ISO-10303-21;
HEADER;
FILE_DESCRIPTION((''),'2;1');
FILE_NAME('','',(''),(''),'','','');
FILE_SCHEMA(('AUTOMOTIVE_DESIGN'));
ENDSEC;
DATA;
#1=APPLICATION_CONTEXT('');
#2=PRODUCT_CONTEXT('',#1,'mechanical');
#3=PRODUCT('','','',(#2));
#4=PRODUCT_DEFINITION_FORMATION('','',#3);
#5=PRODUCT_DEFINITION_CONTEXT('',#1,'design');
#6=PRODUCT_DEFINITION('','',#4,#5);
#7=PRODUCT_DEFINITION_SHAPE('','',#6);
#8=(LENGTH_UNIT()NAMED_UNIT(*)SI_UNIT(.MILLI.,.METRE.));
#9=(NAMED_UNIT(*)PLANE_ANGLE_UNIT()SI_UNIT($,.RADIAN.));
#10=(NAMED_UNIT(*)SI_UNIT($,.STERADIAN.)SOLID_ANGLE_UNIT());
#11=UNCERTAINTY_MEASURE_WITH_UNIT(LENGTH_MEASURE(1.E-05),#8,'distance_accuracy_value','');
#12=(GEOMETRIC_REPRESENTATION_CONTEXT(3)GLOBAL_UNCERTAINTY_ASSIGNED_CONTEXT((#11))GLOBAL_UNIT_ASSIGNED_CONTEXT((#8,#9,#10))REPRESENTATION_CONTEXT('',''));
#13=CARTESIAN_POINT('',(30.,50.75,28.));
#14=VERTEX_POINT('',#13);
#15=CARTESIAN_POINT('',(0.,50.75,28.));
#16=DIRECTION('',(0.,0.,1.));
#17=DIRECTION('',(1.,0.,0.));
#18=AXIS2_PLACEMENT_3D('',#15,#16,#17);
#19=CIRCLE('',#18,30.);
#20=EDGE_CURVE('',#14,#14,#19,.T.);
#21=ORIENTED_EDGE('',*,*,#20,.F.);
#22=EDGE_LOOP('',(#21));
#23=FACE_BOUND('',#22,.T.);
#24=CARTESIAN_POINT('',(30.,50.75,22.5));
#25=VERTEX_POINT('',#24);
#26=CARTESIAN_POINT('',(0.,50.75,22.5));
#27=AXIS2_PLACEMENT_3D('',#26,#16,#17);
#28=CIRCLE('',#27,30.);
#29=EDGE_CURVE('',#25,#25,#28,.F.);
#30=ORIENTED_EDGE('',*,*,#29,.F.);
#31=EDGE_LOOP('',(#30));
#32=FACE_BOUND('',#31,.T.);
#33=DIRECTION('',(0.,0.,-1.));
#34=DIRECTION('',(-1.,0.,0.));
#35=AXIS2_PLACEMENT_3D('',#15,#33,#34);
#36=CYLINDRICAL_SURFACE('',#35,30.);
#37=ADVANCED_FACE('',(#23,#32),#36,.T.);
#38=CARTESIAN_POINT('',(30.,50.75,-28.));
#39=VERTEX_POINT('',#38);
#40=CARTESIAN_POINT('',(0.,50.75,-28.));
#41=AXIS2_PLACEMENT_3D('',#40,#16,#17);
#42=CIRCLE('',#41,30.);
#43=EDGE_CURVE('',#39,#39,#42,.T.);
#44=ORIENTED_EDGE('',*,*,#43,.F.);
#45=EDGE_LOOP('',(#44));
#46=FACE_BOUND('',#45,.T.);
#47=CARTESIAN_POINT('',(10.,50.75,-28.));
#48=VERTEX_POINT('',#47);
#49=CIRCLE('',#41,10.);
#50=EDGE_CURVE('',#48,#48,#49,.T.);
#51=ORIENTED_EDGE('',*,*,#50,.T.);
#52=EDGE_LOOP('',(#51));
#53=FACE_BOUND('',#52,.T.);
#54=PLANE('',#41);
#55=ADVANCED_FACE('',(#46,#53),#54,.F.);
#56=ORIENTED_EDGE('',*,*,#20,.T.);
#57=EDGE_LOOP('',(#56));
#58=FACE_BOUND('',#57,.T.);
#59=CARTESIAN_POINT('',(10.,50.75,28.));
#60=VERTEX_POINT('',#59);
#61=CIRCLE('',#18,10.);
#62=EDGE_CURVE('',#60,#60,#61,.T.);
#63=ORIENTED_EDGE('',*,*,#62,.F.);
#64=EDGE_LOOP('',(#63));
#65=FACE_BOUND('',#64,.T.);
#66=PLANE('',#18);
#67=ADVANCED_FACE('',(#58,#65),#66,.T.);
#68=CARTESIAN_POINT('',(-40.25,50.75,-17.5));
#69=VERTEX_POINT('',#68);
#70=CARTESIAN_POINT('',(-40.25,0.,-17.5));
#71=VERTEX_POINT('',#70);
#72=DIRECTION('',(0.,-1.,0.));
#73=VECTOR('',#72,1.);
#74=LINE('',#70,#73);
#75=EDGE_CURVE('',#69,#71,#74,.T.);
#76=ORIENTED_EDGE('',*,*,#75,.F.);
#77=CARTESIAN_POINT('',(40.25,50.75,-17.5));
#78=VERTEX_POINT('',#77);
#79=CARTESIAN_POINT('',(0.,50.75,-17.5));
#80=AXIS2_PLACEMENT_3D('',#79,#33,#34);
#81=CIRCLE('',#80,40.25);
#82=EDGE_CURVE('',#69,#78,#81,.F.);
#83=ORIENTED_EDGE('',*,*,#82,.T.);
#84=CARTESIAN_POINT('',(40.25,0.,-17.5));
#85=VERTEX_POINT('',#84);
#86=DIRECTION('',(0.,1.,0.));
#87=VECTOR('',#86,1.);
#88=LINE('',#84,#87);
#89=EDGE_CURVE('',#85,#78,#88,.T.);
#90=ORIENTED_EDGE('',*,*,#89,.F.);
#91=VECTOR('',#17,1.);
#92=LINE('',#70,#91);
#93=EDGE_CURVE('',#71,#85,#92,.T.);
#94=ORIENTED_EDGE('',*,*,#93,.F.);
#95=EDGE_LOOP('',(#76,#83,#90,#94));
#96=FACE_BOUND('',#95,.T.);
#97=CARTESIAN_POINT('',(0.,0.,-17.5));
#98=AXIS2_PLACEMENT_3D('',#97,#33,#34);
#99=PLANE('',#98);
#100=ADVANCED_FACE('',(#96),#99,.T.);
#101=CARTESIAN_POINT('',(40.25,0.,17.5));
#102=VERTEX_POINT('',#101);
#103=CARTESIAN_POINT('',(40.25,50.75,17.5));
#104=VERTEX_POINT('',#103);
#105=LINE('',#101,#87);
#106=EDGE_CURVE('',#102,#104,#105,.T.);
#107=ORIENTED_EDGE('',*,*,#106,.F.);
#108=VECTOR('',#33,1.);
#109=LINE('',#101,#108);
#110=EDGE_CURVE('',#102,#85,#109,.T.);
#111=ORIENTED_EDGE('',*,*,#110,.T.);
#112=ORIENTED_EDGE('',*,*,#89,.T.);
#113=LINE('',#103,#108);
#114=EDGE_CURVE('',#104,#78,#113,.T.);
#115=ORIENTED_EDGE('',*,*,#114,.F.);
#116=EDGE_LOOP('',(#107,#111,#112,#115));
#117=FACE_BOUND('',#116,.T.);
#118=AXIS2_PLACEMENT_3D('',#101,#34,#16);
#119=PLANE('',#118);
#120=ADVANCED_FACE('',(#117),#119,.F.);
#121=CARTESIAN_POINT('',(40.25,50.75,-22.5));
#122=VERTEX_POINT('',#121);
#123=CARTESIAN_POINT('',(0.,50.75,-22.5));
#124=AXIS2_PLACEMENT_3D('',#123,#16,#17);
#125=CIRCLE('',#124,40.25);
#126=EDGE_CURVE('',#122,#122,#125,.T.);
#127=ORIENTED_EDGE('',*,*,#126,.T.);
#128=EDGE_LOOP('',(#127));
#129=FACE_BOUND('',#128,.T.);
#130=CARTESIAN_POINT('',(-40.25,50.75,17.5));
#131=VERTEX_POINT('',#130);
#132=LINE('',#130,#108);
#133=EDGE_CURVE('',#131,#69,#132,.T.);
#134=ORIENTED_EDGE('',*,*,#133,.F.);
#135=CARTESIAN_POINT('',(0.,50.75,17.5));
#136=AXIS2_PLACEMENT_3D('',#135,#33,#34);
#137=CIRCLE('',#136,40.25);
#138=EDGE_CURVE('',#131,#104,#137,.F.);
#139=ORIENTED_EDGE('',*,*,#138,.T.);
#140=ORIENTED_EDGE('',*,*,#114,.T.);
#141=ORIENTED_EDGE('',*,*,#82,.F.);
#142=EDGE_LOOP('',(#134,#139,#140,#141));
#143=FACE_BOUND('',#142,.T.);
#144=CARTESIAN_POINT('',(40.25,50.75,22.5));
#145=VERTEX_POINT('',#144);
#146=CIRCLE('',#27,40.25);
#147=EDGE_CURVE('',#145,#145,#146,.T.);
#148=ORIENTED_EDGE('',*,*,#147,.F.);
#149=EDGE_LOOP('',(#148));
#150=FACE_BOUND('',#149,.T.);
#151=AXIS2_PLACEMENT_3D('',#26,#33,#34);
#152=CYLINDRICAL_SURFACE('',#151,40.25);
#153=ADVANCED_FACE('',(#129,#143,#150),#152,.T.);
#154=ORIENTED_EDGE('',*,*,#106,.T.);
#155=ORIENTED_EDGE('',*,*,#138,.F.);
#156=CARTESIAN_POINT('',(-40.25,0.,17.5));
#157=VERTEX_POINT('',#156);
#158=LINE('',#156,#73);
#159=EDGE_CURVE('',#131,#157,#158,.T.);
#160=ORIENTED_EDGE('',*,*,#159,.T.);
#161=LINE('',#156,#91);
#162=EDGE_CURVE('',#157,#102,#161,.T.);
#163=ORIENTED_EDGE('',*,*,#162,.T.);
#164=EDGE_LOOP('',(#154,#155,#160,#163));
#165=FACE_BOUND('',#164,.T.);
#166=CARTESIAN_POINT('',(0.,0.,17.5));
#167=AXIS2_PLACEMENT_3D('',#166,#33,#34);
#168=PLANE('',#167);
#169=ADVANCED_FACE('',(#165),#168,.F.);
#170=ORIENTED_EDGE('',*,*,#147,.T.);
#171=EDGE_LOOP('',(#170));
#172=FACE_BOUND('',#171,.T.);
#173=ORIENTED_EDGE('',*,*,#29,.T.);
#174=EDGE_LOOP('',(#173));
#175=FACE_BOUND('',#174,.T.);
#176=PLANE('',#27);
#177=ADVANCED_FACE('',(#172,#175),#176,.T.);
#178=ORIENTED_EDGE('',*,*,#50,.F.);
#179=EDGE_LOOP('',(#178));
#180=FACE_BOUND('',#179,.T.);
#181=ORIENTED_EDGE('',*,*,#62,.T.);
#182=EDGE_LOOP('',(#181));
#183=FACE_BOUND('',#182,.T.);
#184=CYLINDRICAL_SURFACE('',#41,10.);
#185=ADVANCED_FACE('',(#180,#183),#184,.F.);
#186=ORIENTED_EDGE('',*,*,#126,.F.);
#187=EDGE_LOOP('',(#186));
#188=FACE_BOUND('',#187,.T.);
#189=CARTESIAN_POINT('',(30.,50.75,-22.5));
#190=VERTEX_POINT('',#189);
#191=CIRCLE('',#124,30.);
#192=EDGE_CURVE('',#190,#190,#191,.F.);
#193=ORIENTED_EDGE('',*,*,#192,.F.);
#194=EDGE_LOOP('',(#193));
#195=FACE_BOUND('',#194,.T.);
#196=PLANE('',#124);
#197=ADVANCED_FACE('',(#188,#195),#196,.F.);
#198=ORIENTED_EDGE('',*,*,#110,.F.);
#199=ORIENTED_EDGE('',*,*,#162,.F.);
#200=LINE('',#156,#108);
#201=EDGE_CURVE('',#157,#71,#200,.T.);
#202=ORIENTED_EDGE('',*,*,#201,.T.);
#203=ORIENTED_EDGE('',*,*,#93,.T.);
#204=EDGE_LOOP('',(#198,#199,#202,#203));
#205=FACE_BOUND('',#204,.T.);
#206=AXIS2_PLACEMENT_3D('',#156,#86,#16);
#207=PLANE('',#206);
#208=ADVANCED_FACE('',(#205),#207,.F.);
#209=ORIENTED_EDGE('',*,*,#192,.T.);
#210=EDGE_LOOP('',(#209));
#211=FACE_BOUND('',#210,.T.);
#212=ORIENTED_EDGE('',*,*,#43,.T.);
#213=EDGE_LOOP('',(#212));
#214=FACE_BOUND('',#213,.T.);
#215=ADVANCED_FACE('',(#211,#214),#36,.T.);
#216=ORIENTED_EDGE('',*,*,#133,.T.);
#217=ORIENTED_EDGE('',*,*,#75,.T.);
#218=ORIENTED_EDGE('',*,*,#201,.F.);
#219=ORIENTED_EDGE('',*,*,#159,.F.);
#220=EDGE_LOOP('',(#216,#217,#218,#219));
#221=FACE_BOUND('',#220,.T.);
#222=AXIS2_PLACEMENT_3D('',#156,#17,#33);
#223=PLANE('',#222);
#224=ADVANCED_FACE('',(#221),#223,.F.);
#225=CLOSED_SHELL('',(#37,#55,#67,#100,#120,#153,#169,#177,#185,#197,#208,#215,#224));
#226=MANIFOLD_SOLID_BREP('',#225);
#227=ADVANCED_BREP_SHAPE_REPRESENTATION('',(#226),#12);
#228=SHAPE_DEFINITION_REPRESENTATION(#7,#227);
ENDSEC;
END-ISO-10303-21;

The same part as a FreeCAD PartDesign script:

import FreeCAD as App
import Part
import Sketcher

V = App.Vector
Q = App.Units.Quantity


def add_polygon(sketch, points):
    """Adds a closed chain of lines whose ends are joined by coincident constraints."""
    first, n = sketch.GeometryCount, len(points)
    for a, b in zip(points, points[1:] + points[:1]):
        sketch.addGeometry(Part.LineSegment(App.Vector(*a, 0), App.Vector(*b, 0)), False)
    for i in range(n):
        sketch.addConstraint(Sketcher.Constraint("Coincident", first + i, 2, first + (i + 1) % n, 1))

doc = App.newDocument("Part")
body = doc.addObject("PartDesign::Body", "Body")

sketch1 = doc.addObject("Sketcher::SketchObject", "Sketch")
body.addObject(sketch1)
sketch1.AttachmentSupport = (doc.XY_Plane, [""])
sketch1.MapMode = "FlatFace"
add_polygon(sketch1, [(-40, 51), (-40, 0), (40, 0), (40, 51)])
sketch1.addConstraint([
    Sketcher.Constraint("Vertical", 0),
    Sketcher.Constraint("Horizontal", 1),
    Sketcher.Constraint("Vertical", 2),
    Sketcher.Constraint("Horizontal", 3),
    Sketcher.Constraint("Symmetric", 0, 2, 1, 2, -1, 1),
    Sketcher.Constraint("DistanceX", 1, 1, 1, 2, Q("80.5 mm")),
    Sketcher.Constraint("DistanceY", 0, 2, 0, 1, Q("50.75 mm")),
])
pad1 = doc.addObject("PartDesign::Pad", "Pad")
body.addObject(pad1)
pad1.Profile = sketch1
pad1.Length = 35
pad1.Midplane = True

sketch2 = doc.addObject("Sketcher::SketchObject", "Sketch001")
body.addObject(sketch2)
sketch2.AttachmentSupport = (doc.XY_Plane, [""])
sketch2.MapMode = "FlatFace"
sketch2.addGeometry(Part.Circle(V(0, 51, 0), V(0, 0, 1), 40), False)
sketch2.addConstraint([
    Sketcher.Constraint("PointOnObject", 0, 3, -2),
    Sketcher.Constraint("Diameter", 0, Q("80.5 mm")),
    Sketcher.Constraint("DistanceY", -1, 1, 0, 3, Q("50.75 mm")),
])
pad2 = doc.addObject("PartDesign::Pad", "Pad001")
body.addObject(pad2)
pad2.Profile = sketch2
pad2.Length = 45
pad2.Midplane = True

sketch3 = doc.addObject("Sketcher::SketchObject", "Sketch002")
body.addObject(sketch3)
sketch3.AttachmentSupport = (doc.XY_Plane, [""])
sketch3.MapMode = "FlatFace"
sketch3.addGeometry(Part.Circle(V(0, 51, 0), V(0, 0, 1), 30), False)
sketch3.addConstraint([
    Sketcher.Constraint("PointOnObject", 0, 3, -2),
    Sketcher.Constraint("Diameter", 0, Q("60 mm")),
    Sketcher.Constraint("DistanceY", -1, 1, 0, 3, Q("50.75 mm")),
])
pad3 = doc.addObject("PartDesign::Pad", "Pad002")
body.addObject(pad3)
pad3.Profile = sketch3
pad3.Length = 56
pad3.Midplane = True

sketch4 = doc.addObject("Sketcher::SketchObject", "Sketch003")
body.addObject(sketch4)
sketch4.AttachmentSupport = (doc.XY_Plane, [""])
sketch4.MapMode = "FlatFace"
sketch4.addGeometry(Part.Circle(V(0, 51, 0), V(0, 0, 1), 10), False)
sketch4.addConstraint([
    Sketcher.Constraint("PointOnObject", 0, 3, -2),
    Sketcher.Constraint("Diameter", 0, Q("20 mm")),
    Sketcher.Constraint("DistanceY", -1, 1, 0, 3, Q("50.75 mm")),
])
pocket1 = doc.addObject("PartDesign::Pocket", "Pocket")
body.addObject(pocket1)
pocket1.Profile = sketch4
pocket1.Type = "ThroughAll"
pocket1.Midplane = True

doc.recompute()
